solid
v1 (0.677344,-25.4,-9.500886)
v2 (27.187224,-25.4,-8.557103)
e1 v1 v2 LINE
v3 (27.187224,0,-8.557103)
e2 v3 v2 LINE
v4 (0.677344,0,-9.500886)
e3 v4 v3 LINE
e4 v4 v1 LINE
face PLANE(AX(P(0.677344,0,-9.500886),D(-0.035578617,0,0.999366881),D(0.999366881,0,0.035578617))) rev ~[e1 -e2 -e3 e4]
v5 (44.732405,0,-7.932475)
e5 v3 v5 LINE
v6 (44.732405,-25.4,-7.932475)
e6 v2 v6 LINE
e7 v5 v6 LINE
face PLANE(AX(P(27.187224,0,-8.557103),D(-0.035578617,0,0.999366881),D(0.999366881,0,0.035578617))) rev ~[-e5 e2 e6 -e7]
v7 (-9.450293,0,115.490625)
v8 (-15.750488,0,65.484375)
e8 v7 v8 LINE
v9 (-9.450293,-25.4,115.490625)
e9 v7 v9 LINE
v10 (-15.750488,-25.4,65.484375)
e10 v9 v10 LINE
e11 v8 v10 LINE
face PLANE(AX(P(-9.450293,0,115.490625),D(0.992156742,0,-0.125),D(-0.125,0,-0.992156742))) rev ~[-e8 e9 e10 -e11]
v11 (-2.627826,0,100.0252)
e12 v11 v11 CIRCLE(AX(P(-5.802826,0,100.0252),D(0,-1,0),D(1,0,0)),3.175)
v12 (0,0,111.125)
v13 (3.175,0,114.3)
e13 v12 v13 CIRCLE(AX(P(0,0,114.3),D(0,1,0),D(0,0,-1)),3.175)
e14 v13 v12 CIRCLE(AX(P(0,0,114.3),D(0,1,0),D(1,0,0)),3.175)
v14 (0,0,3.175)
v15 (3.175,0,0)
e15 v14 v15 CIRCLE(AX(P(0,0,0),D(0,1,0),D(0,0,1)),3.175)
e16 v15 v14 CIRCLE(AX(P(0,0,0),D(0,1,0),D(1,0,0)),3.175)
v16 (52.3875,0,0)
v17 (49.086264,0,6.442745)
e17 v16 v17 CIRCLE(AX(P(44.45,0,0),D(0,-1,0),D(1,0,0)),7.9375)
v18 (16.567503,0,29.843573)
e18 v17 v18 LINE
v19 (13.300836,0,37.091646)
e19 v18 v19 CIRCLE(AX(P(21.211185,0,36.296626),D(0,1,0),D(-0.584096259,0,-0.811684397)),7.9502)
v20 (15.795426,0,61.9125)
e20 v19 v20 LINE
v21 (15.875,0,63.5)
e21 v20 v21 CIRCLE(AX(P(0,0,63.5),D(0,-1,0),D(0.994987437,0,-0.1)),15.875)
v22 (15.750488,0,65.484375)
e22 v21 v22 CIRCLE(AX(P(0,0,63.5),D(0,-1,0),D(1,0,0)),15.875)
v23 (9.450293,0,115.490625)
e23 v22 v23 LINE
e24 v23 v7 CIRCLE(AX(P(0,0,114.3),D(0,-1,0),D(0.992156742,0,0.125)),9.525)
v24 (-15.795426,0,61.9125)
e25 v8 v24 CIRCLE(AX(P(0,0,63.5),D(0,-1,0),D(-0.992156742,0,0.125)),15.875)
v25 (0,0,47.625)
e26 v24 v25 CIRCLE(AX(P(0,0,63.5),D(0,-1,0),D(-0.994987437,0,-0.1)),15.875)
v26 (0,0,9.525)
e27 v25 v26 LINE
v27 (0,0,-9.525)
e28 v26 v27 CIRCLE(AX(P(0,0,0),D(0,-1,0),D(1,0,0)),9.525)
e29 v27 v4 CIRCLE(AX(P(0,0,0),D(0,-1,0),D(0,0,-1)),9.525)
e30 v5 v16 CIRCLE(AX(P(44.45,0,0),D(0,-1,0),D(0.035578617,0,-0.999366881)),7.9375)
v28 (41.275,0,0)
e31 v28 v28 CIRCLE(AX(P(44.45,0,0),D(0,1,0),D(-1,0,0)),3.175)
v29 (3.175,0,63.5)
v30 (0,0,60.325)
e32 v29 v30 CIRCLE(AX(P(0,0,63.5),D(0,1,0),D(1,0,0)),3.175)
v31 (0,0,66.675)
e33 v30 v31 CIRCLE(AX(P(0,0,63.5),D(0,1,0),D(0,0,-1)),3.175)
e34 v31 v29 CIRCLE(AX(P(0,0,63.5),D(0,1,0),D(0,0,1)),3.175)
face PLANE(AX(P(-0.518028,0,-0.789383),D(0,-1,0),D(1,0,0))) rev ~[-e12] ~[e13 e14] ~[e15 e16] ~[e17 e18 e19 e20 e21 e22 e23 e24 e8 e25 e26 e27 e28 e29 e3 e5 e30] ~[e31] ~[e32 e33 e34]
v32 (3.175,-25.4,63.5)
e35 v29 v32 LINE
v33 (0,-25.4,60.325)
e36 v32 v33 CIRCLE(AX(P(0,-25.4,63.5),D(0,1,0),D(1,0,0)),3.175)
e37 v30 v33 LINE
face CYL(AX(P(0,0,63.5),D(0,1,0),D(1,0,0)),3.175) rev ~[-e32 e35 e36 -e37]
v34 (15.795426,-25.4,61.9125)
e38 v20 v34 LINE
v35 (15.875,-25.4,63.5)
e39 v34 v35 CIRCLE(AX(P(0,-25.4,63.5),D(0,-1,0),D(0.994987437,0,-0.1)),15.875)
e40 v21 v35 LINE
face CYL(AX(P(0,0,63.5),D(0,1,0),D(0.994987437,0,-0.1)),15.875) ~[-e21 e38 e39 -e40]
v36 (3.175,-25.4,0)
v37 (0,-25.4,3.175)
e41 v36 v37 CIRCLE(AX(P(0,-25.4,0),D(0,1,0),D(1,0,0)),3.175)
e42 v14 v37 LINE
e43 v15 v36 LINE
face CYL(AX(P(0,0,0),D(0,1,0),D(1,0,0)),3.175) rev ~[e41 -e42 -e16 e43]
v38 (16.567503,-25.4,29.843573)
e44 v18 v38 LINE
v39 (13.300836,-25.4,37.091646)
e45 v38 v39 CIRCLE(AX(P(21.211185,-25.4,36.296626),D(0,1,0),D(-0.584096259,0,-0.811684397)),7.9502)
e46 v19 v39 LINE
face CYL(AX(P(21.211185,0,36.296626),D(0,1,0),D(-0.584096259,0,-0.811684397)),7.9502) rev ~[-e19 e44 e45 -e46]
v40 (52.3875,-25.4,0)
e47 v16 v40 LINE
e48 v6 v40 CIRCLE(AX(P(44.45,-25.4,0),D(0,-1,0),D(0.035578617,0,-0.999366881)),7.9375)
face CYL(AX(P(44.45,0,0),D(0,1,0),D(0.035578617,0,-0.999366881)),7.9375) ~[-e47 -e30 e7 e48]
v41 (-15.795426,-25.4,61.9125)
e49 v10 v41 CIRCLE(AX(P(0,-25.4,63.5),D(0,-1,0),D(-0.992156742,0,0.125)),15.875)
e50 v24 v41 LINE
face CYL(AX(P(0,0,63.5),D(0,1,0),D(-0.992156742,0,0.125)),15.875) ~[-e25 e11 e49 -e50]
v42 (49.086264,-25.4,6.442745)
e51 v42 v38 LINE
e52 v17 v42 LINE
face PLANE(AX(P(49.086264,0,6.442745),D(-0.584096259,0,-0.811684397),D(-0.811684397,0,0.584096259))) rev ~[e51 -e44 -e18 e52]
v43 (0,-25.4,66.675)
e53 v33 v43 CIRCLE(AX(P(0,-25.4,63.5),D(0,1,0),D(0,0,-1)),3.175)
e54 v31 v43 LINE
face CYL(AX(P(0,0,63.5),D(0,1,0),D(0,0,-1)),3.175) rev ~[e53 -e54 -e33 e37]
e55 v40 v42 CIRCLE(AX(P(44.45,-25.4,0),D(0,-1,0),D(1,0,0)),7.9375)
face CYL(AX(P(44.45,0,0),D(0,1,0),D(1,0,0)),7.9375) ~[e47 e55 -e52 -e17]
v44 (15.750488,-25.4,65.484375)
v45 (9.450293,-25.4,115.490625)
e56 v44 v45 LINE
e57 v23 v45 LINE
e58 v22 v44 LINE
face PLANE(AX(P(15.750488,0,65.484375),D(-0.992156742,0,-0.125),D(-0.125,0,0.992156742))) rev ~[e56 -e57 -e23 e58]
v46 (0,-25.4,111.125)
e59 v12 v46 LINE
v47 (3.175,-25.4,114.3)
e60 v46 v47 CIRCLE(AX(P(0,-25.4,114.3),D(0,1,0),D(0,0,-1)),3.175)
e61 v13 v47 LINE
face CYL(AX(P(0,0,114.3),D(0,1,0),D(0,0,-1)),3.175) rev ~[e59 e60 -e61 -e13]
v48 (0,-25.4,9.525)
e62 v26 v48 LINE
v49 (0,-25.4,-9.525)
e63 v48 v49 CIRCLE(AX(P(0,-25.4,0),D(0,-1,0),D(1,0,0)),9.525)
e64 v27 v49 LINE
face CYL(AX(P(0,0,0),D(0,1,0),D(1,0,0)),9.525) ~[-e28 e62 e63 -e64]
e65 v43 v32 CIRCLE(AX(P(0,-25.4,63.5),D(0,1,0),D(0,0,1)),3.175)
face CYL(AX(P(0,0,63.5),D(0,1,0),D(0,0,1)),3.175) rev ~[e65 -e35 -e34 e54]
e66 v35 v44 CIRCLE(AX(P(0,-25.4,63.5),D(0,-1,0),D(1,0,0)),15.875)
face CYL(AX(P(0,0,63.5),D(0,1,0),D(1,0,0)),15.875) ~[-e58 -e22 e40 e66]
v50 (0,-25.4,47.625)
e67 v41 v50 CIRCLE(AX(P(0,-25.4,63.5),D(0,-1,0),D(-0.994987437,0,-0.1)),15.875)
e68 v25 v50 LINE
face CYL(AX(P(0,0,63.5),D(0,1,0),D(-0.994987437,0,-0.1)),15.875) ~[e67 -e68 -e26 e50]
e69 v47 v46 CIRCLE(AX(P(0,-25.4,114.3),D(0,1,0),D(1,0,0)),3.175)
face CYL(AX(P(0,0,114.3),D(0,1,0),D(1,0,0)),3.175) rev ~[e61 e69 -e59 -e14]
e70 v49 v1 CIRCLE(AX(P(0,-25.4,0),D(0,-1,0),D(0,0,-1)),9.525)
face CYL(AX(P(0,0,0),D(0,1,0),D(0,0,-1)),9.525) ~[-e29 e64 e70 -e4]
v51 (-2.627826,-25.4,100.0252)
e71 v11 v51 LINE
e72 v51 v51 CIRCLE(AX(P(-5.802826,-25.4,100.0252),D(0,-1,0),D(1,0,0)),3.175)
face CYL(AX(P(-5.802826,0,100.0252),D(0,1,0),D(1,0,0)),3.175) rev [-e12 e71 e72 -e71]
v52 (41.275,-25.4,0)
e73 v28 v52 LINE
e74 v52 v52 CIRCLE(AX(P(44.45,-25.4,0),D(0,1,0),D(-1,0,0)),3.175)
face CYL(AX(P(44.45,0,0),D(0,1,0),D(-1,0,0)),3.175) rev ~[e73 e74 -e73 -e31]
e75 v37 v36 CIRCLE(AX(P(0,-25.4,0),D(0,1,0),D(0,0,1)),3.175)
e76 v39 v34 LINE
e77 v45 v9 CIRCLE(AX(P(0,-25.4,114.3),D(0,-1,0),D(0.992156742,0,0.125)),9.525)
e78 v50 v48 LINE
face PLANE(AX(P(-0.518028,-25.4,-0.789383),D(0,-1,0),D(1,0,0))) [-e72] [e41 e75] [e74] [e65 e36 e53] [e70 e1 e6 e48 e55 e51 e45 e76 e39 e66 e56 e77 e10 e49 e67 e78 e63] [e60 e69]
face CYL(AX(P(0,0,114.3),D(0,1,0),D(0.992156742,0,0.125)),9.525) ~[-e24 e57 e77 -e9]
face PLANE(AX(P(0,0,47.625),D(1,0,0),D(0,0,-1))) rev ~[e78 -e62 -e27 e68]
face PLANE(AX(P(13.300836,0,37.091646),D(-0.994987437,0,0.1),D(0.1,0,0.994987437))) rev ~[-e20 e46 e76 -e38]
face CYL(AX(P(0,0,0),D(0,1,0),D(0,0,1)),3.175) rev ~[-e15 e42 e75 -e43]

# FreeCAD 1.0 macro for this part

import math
import FreeCAD as App
import Part
import Sketcher
from FreeCAD import Vector
Q = App.Units.Quantity

doc = App.newDocument("Part")
params = doc.addObject("Spreadsheet::Sheet", "Params")
for row, (alias, value) in enumerate([
    ("sketch1_diameter", "0.25 in"),
    ("sketch1_height", "1.5 in"),
    ("sketch1_radius", "0.3125 in"),
    ("sketch1_radius2", "0.313 in"),
    ("sketch1_radius3", "0.625 in"),
    ("pad1_length", "1 in"),
], start=1):
    params.set(f"A{row}", alias)
    params.set(f"B{row}", "=" + value)
    params.setAlias(f"B{row}", alias)

body = doc.addObject("PartDesign::Body", "Body")

# Sketch on XZ plane
sketch1 = doc.addObject("Sketcher::SketchObject", "Sketch")
body.addObject(sketch1)
sketch1.AttachmentSupport = (doc.XZ_Plane, [""])
sketch1.MapMode = "FlatFace"
sketch1.addGeometry(Part.LineSegment(Vector(0.677344, -9.500886, 0), Vector(27.187224, -8.557103, 0)), False)
sketch1.addGeometry(Part.LineSegment(Vector(27.187224, -8.557103, 0), Vector(44.732405, -7.932475, 0)), False)
sketch1.addGeometry(Part.ArcOfCircle(Part.Circle(Vector(44.45, 0, 0), Vector(0, 0, 1), 7.9375), math.radians(-87.961065), math.radians(0)), False)
sketch1.addGeometry(Part.ArcOfCircle(Part.Circle(Vector(44.45, 0, 0), Vector(0, 0, 1), 7.9375), math.radians(0), math.radians(54.26083)), False)
sketch1.addGeometry(Part.LineSegment(Vector(49.086264, 6.442745, 0), Vector(16.567503, 29.843573, 0)), False)
sketch1.addGeometry(Part.ArcOfCircle(Part.Circle(Vector(21.211185, 36.296626, 0), Vector(0, 0, 1), 7.9502), math.radians(174.26083), math.radians(234.26083)), False)
sketch1.addGeometry(Part.LineSegment(Vector(13.300836, 37.091646, 0), Vector(15.795426, 61.9125, 0)), False)
sketch1.addGeometry(Part.ArcOfCircle(Part.Circle(Vector(0, 63.5, 0), Vector(0, 0, 1), 15.875), math.radians(-5.73917), math.radians(0)), False)
sketch1.addGeometry(Part.ArcOfCircle(Part.Circle(Vector(0, 63.5, 0), Vector(0, 0, 1), 15.875), math.radians(0), math.radians(7.180756)), False)
sketch1.addGeometry(Part.LineSegment(Vector(15.750488, 65.484375, 0), Vector(9.450293, 115.490625, 0)), False)
sketch1.addGeometry(Part.ArcOfCircle(Part.Circle(Vector(0, 114.3, 0), Vector(0, 0, 1), 9.525), math.radians(7.180756), math.radians(172.819244)), False)
sketch1.addGeometry(Part.LineSegment(Vector(-9.450293, 115.490625, 0), Vector(-15.750488, 65.484375, 0)), False)
sketch1.addGeometry(Part.ArcOfCircle(Part.Circle(Vector(0, 63.5, 0), Vector(0, 0, 1), 15.875), math.radians(172.819244), math.radians(185.73917)), False)
sketch1.addGeometry(Part.ArcOfCircle(Part.Circle(Vector(0, 63.5, 0), Vector(0, 0, 1), 15.875), math.radians(-174.26083), math.radians(-90)), False)
sketch1.addGeometry(Part.LineSegment(Vector(0, 47.625, 0), Vector(0, 9.525, 0)), False)
sketch1.addGeometry(Part.ArcOfCircle(Part.Circle(Vector(0, 0, 0), Vector(0, 0, 1), 9.525), math.radians(90), math.radians(270)), False)
sketch1.addGeometry(Part.ArcOfCircle(Part.Circle(Vector(0, 0, 0), Vector(0, 0, 1), 9.525), math.radians(-90), math.radians(-85.92213)), False)
sketch1.addGeometry(Part.ArcOfCircle(Part.Circle(Vector(0, 0, 0), Vector(0, 0, 1), 3.175), math.radians(90), math.radians(360)), False)
sketch1.addGeometry(Part.ArcOfCircle(Part.Circle(Vector(0, 0, 0), Vector(0, 0, 1), 3.175), math.radians(0), math.radians(90)), False)
sketch1.addGeometry(Part.Circle(Vector(44.45, 0, 0), Vector(0, 0, 1), 3.175), False)
sketch1.addGeometry(Part.ArcOfCircle(Part.Circle(Vector(0, 63.5, 0), Vector(0, 0, 1), 3.175), math.radians(-90), math.radians(0)), False)
sketch1.addGeometry(Part.ArcOfCircle(Part.Circle(Vector(0, 63.5, 0), Vector(0, 0, 1), 3.175), math.radians(90), math.radians(270)), False)
sketch1.addGeometry(Part.ArcOfCircle(Part.Circle(Vector(0, 63.5, 0), Vector(0, 0, 1), 3.175), math.radians(0), math.radians(90)), False)
sketch1.addGeometry(Part.Circle(Vector(-5.802826, 100.0252, 0), Vector(0, 0, 1), 3.175), False)
sketch1.addGeometry(Part.ArcOfCircle(Part.Circle(Vector(0, 114.3, 0), Vector(0, 0, 1), 3.175), math.radians(0), math.radians(270)), False)
sketch1.addGeometry(Part.ArcOfCircle(Part.Circle(Vector(0, 114.3, 0), Vector(0, 0, 1), 3.175), math.radians(-90), math.radians(0)), False)
sketch1.addConstraint(Sketcher.Constraint("Coincident", 0, 2, 1, 1))
sketch1.addConstraint(Sketcher.Constraint("Tangent", 1, 2, 2, 1))
sketch1.addConstraint(Sketcher.Constraint("Tangent", 2, 2, 3, 1))
sketch1.addConstraint(Sketcher.Constraint("Tangent", 3, 2, 4, 1))
sketch1.addConstraint(Sketcher.Constraint("Tangent", 4, 2, 5, 2))
sketch1.addConstraint(Sketcher.Constraint("Tangent", 5, 1, 6, 1))
sketch1.addConstraint(Sketcher.Constraint("Tangent", 6, 2, 7, 1))
sketch1.addConstraint(Sketcher.Constraint("Tangent", 7, 2, 8, 1))
sketch1.addConstraint(Sketcher.Constraint("Tangent", 8, 2, 9, 1))
sketch1.addConstraint(Sketcher.Constraint("Tangent", 9, 2, 10, 1))
sketch1.addConstraint(Sketcher.Constraint("Tangent", 10, 2, 11, 1))
sketch1.addConstraint(Sketcher.Constraint("Tangent", 11, 2, 12, 1))
sketch1.addConstraint(Sketcher.Constraint("Tangent", 12, 2, 13, 1))
sketch1.addConstraint(Sketcher.Constraint("Coincident", 13, 2, 14, 1))
sketch1.addConstraint(Sketcher.Constraint("Coincident", 14, 2, 15, 1))
sketch1.addConstraint(Sketcher.Constraint("Tangent", 15, 2, 16, 1))
sketch1.addConstraint(Sketcher.Constraint("Coincident", 16, 2, 0, 1))
sketch1.addConstraint(Sketcher.Constraint("Tangent", 17, 1, 18, 2))
sketch1.addConstraint(Sketcher.Constraint("Coincident", 18, 1, 17, 2))
sketch1.addConstraint(Sketcher.Constraint("Tangent", 20, 1, 21, 2))
sketch1.addConstraint(Sketcher.Constraint("Tangent", 21, 1, 22, 2))
sketch1.addConstraint(Sketcher.Constraint("Tangent", 22, 1, 20, 2))
sketch1.addConstraint(Sketcher.Constraint("Tangent", 24, 1, 25, 2))
sketch1.addConstraint(Sketcher.Constraint("Coincident", 25, 1, 24, 2))
sketch1.addConstraint(Sketcher.Constraint("Vertical", 14))
sketch1.addConstraint(Sketcher.Constraint("Coincident", 15, 3, -1, 1))
sketch1.addConstraint(Sketcher.Constraint("Coincident", 17, 3, -1, 1))
sketch1.addConstraint(Sketcher.Constraint("Coincident", 12, 3, 7, 3))
sketch1.addConstraint(Sketcher.Constraint("Coincident", 19, 3, 2, 3))
sketch1.addConstraint(Sketcher.Constraint("Coincident", 20, 3, 7, 3))
sketch1.addConstraint(Sketcher.Constraint("Coincident", 24, 3, 10, 3))
sketch1.addConstraint(Sketcher.Constraint("Equal", 2, 3))
sketch1.addConstraint(Sketcher.Constraint("Equal", 7, 8))
sketch1.addConstraint(Sketcher.Constraint("Equal", 8, 12))
sketch1.addConstraint(Sketcher.Constraint("Equal", 12, 13))
sketch1.addConstraint(Sketcher.Constraint("Equal", 10, 15))
sketch1.addConstraint(Sketcher.Constraint("Equal", 15, 16))
sketch1.addConstraint(Sketcher.Constraint("Equal", 18, 19))
sketch1.addConstraint(Sketcher.Constraint("Equal", 19, 20))
sketch1.addConstraint(Sketcher.Constraint("Equal", 22, 23))
sketch1.addConstraint(Sketcher.Constraint("Equal", 23, 24))
sketch1.addConstraint(Sketcher.Constraint("Symmetric", 9, 2, 10, 2, -2))
sketch1.addConstraint(Sketcher.Constraint("PointOnObject", 2, 3, -1))
sketch1.addConstraint(Sketcher.Constraint("PointOnObject", 2, 2, -1))
sketch1.addConstraint(Sketcher.Constraint("PointOnObject", 13, 2, -2))
sketch1.addConstraint(Sketcher.Constraint("PointOnObject", 15, 2, -2))
sketch1.addConstraint(Sketcher.Constraint("PointOnObject", 17, 1, -2))
sketch1.addConstraint(Sketcher.Constraint("PointOnObject", 18, 1, -1))
sketch1.addConstraint(Sketcher.Constraint("PointOnObject", 20, 1, -2))
sketch1.addConstraint(Sketcher.Constraint("PointOnObject", 21, 1, -2))
sketch1.addConstraint(Sketcher.Constraint("PointOnObject", 25, 1, -2))
sketch1.addConstraint(Sketcher.Constraint("Parallel", 0, 1))
sketch1.addConstraint(Sketcher.Constraint("Horizontal", 22, 3, 7, 2))
sketch1.addConstraint(Sketcher.Constraint("Horizontal", 6, 2, 12, 2))
sketch1.addConstraint(Sketcher.Constraint("Horizontal", 7, 2, 22, 1))
sketch1.addConstraint(Sketcher.Constraint("Horizontal", 25, 3, 24, 1))
sketch1.addConstraint(Sketcher.Constraint("Diameter", 19, Q("0.25 in")))
sketch1.addConstraint(Sketcher.Constraint("DistanceY", 14, 2, 14, 1, Q("1.5 in")))
sketch1.addConstraint(Sketcher.Constraint("Radius", 2, Q("0.3125 in")))
sketch1.addConstraint(Sketcher.Constraint("Radius", 5, Q("0.313 in")))
sketch1.addConstraint(Sketcher.Constraint("Radius", 7, Q("0.625 in")))
sketch1.addConstraint(Sketcher.Constraint("Radius", 10, Q("0.375 in")))
sketch1.addConstraint(Sketcher.Constraint("DistanceY", 7, 3, 10, 3, Q("2 in")))
sketch1.addConstraint(Sketcher.Constraint("DistanceX", -1, 1, 2, 3, Q("1.75 in")))
sketch1.addConstraint(Sketcher.Constraint("DistanceY", -1, 1, 23, 3, Q("3.938 in")))
sketch1.addConstraint(Sketcher.Constraint("DistanceY", -1, 1, 6, 2, Q("2.4375 in")))
sketch1.addConstraint(Sketcher.Constraint("DistanceX", 0, 2, 1, 2, Q("17.545181 mm")))
sketch1.addConstraint(Sketcher.Constraint("DistanceY", 0, 2, 1, 2, Q("0.624629 mm")))
sketch1.addConstraint(Sketcher.Constraint("DistanceX", 1, 2, 3, 2, Q("4.353859 mm")))
sketch1.addConstraint(Sketcher.Constraint("DistanceX", 23, 3, 9, 2, Q("15.253119 mm")))
sketch1.setExpression("Constraints[56]", "Params.sketch1_diameter")
sketch1.setExpression("Constraints[57]", "Params.sketch1_height")
sketch1.setExpression("Constraints[58]", "Params.sketch1_radius")
sketch1.setExpression("Constraints[59]", "Params.sketch1_radius2")
sketch1.setExpression("Constraints[60]", "Params.sketch1_radius3")
pad1 = doc.addObject("PartDesign::Pad", "Pad")
body.addObject(pad1)
pad1.Profile = sketch1
pad1.setExpression("Length", "Params.pad1_length")

doc.recompute()
